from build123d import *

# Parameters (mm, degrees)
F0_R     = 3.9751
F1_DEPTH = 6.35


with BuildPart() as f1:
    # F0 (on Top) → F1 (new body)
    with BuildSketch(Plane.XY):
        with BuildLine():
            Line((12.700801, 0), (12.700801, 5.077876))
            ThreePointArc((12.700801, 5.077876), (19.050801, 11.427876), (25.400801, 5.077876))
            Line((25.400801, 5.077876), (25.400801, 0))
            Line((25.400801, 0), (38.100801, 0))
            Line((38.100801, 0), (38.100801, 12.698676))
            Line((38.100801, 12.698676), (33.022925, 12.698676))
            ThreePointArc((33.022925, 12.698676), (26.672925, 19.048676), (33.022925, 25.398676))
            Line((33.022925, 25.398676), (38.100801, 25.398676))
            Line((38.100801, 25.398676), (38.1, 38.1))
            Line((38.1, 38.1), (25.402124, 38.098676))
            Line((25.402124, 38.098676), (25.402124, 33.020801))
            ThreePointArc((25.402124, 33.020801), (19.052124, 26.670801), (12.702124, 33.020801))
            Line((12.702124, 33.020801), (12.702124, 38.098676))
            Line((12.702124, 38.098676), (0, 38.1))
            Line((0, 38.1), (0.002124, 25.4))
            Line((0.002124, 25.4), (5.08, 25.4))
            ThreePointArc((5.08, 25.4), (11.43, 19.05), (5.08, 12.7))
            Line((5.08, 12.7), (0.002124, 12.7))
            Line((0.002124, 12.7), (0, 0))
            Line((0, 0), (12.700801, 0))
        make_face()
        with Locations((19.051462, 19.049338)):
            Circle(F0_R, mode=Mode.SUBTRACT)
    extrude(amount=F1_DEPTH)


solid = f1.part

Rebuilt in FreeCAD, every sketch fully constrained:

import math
import FreeCAD as App
import Part
import Sketcher
Q = App.Units.Quantity

doc = App.newDocument("Part")
params = doc.addObject("Spreadsheet::Sheet", "Params")
for row, (alias, value) in enumerate([
    ("sketch1_radius", "0.25 in"),
    ("sketch1_diameter", "0.313 in"),
    ("sketch1_width", "0.5 in"),
    ("pad1_length", "0.25 in"),
], start=1):
    params.set(f"A{row}", alias)
    params.set(f"B{row}", "=" + value)
    params.setAlias(f"B{row}", alias)

body = doc.addObject("PartDesign::Body", "Body")

sketch1 = body.newObject("Sketcher::SketchObject", "Sketch")
sketch1.AttachmentSupport = (doc.getObject("XY_Plane"), [""])
sketch1.MapMode = "FlatFace"
sketch1.addGeometry([
    Part.LineSegment(App.Vector(12.7, 0, 0), App.Vector(12.7, 5.1, 0)),
    Part.ArcOfCircle(Part.Circle(App.Vector(19.1, 5.1, 0), App.Vector(0, 0, 1), 6.3), math.radians(0), math.radians(180)),
    Part.LineSegment(App.Vector(25.4, 5.1, 0), App.Vector(25.4, 0, 0)),
    Part.LineSegment(App.Vector(25.4, 0, 0), App.Vector(38.1, 0, 0)),
    Part.LineSegment(App.Vector(38.1, 0, 0), App.Vector(38.1, 12.7, 0)),
    Part.LineSegment(App.Vector(38.1, 12.7, 0), App.Vector(33, 12.7, 0)),
    Part.ArcOfCircle(Part.Circle(App.Vector(33, 19, 0), App.Vector(0, 0, 1), 6.3), math.radians(90), math.radians(270)),
    Part.LineSegment(App.Vector(33, 25.4, 0), App.Vector(38.1, 25.4, 0)),
    Part.LineSegment(App.Vector(38.1, 25.4, 0), App.Vector(38.1, 38.1, 0)),
    Part.LineSegment(App.Vector(38.1, 38.1, 0), App.Vector(25.4, 38.1, 0)),
    Part.LineSegment(App.Vector(25.4, 38.1, 0), App.Vector(25.4, 33, 0)),
    Part.ArcOfCircle(Part.Circle(App.Vector(19.1, 33, 0), App.Vector(0, 0, 1), 6.3), math.radians(180), math.radians(360)),
    Part.LineSegment(App.Vector(12.7, 33, 0), App.Vector(12.7, 38.1, 0)),
    Part.LineSegment(App.Vector(12.7, 38.1, 0), App.Vector(0, 38.1, 0)),
    Part.LineSegment(App.Vector(0, 38.1, 0), App.Vector(0, 25.4, 0)),
    Part.LineSegment(App.Vector(0, 25.4, 0), App.Vector(5.1, 25.4, 0)),
    Part.ArcOfCircle(Part.Circle(App.Vector(5.1, 19.1, 0), App.Vector(0, 0, 1), 6.3), math.radians(-90), math.radians(90)),
    Part.LineSegment(App.Vector(5.1, 12.7, 0), App.Vector(0, 12.7, 0)),
    Part.LineSegment(App.Vector(0, 12.7, 0), App.Vector(0, 0, 0)),
    Part.LineSegment(App.Vector(0, 0, 0), App.Vector(12.7, 0, 0)),
    Part.Circle(App.Vector(19.1, 19, 0), App.Vector(0, 0, 1), 4),
], False)
sketch1.addConstraint([
    Sketcher.Constraint("Tangent", 0, 2, 1, 2),
    Sketcher.Constraint("Tangent", 1, 1, 2, 1),
    Sketcher.Constraint("Coincident", 2, 2, 3, 1),
    Sketcher.Constraint("Coincident", 3, 2, 4, 1),
    Sketcher.Constraint("Coincident", 4, 2, 5, 1),
    Sketcher.Constraint("Tangent", 5, 2, 6, 2),
    Sketcher.Constraint("Tangent", 6, 1, 7, 1),
    Sketcher.Constraint("Coincident", 7, 2, 8, 1),
    Sketcher.Constraint("Coincident", 8, 2, 9, 1),
    Sketcher.Constraint("Coincident", 9, 2, 10, 1),
    Sketcher.Constraint("Tangent", 10, 2, 11, 2),
    Sketcher.Constraint("Tangent", 11, 1, 12, 1),
    Sketcher.Constraint("Coincident", 12, 2, 13, 1),
    Sketcher.Constraint("Coincident", 13, 2, 14, 1),
    Sketcher.Constraint("Coincident", 14, 2, 15, 1),
    Sketcher.Constraint("Tangent", 15, 2, 16, 2),
    Sketcher.Constraint("Tangent", 16, 1, 17, 1),
    Sketcher.Constraint("Coincident", 17, 2, 18, 1),
    Sketcher.Constraint("Coincident", 18, 2, 19, 1),
    Sketcher.Constraint("Coincident", 19, 2, 0, 1),
    Sketcher.Constraint("Vertical", 0),
    Sketcher.Constraint("Vertical", 2),
    Sketcher.Constraint("Horizontal", 3),
    Sketcher.Constraint("Vertical", 4),
    Sketcher.Constraint("Horizontal", 5),
    Sketcher.Constraint("Horizontal", 7),
    Sketcher.Constraint("Vertical", 10),
    Sketcher.Constraint("Vertical", 12),
    Sketcher.Constraint("Horizontal", 15),
    Sketcher.Constraint("Horizontal", 17),
    Sketcher.Constraint("Horizontal", 19),
    Sketcher.Constraint("Coincident", 18, 2, -1, 1),
    Sketcher.Constraint("Equal", 1, 6),
    Sketcher.Constraint("Equal", 6, 11),
    Sketcher.Constraint("Equal", 11, 16),
    Sketcher.Constraint("PointOnObject", 2, 2, -1),
    Sketcher.Constraint("PointOnObject", 13, 2, -2),
    Sketcher.Constraint("Horizontal", 9, 2, 12, 2),
    Sketcher.Constraint("Horizontal", 8, 2, 13, 2),
    Sketcher.Constraint("Vertical", 4, 2, 7, 2),
    Sketcher.Constraint("Vertical", 14, 2, 17, 2),
    Sketcher.Constraint("Equal", 7, 15),
    Sketcher.Constraint("Equal", 17, 0),
    Sketcher.Constraint("Equal", 2, 10),
    Sketcher.Constraint("Equal", 14, 18),
    Sketcher.Constraint("Radius", 1, Q("0.25 in")),
    Sketcher.Constraint("Diameter", 20, Q("0.313 in")),
    Sketcher.Constraint("DistanceX", 3, 1, 3, 2, Q("0.5 in")),
    Sketcher.Constraint("DistanceY", -1, 1, 14, 2, Q("1 in")),
    Sketcher.Constraint("DistanceX", -1, 1, 16, 3, Q("0.2 in")),
    Sketcher.Constraint("DistanceX", -1, 1, 8, 2, Q("1.5 in")),
    Sketcher.Constraint("DistanceY", 6, 1, 9, 2, Q("0.5 in")),
    Sketcher.Constraint("DistanceX", 14, 2, 11, 1, Q("0.5 in")),
    Sketcher.Constraint("DistanceX", 19, 1, 19, 2, 12.700801),
    Sketcher.Constraint("DistanceY", -1, 1, 11, 3, 33.020801),
    Sketcher.Constraint("DistanceX", 5, 2, 5, 1, 5.077876),
    Sketcher.Constraint("DistanceX", 1, 3, 20, 3, 0.000661),
    Sketcher.Constraint("DistanceY", 1, 3, 20, 3, 13.971462),
])
sketch1.setExpression("Constraints[45]", "Params.sketch1_radius")
sketch1.setExpression("Constraints[46]", "Params.sketch1_diameter")
sketch1.setExpression("Constraints[47]", "Params.sketch1_width")
pad1 = body.newObject("PartDesign::Pad", "Pad")
pad1.Profile = sketch1
pad1.setExpression("Length", "Params.pad1_length")

doc.recompute()
